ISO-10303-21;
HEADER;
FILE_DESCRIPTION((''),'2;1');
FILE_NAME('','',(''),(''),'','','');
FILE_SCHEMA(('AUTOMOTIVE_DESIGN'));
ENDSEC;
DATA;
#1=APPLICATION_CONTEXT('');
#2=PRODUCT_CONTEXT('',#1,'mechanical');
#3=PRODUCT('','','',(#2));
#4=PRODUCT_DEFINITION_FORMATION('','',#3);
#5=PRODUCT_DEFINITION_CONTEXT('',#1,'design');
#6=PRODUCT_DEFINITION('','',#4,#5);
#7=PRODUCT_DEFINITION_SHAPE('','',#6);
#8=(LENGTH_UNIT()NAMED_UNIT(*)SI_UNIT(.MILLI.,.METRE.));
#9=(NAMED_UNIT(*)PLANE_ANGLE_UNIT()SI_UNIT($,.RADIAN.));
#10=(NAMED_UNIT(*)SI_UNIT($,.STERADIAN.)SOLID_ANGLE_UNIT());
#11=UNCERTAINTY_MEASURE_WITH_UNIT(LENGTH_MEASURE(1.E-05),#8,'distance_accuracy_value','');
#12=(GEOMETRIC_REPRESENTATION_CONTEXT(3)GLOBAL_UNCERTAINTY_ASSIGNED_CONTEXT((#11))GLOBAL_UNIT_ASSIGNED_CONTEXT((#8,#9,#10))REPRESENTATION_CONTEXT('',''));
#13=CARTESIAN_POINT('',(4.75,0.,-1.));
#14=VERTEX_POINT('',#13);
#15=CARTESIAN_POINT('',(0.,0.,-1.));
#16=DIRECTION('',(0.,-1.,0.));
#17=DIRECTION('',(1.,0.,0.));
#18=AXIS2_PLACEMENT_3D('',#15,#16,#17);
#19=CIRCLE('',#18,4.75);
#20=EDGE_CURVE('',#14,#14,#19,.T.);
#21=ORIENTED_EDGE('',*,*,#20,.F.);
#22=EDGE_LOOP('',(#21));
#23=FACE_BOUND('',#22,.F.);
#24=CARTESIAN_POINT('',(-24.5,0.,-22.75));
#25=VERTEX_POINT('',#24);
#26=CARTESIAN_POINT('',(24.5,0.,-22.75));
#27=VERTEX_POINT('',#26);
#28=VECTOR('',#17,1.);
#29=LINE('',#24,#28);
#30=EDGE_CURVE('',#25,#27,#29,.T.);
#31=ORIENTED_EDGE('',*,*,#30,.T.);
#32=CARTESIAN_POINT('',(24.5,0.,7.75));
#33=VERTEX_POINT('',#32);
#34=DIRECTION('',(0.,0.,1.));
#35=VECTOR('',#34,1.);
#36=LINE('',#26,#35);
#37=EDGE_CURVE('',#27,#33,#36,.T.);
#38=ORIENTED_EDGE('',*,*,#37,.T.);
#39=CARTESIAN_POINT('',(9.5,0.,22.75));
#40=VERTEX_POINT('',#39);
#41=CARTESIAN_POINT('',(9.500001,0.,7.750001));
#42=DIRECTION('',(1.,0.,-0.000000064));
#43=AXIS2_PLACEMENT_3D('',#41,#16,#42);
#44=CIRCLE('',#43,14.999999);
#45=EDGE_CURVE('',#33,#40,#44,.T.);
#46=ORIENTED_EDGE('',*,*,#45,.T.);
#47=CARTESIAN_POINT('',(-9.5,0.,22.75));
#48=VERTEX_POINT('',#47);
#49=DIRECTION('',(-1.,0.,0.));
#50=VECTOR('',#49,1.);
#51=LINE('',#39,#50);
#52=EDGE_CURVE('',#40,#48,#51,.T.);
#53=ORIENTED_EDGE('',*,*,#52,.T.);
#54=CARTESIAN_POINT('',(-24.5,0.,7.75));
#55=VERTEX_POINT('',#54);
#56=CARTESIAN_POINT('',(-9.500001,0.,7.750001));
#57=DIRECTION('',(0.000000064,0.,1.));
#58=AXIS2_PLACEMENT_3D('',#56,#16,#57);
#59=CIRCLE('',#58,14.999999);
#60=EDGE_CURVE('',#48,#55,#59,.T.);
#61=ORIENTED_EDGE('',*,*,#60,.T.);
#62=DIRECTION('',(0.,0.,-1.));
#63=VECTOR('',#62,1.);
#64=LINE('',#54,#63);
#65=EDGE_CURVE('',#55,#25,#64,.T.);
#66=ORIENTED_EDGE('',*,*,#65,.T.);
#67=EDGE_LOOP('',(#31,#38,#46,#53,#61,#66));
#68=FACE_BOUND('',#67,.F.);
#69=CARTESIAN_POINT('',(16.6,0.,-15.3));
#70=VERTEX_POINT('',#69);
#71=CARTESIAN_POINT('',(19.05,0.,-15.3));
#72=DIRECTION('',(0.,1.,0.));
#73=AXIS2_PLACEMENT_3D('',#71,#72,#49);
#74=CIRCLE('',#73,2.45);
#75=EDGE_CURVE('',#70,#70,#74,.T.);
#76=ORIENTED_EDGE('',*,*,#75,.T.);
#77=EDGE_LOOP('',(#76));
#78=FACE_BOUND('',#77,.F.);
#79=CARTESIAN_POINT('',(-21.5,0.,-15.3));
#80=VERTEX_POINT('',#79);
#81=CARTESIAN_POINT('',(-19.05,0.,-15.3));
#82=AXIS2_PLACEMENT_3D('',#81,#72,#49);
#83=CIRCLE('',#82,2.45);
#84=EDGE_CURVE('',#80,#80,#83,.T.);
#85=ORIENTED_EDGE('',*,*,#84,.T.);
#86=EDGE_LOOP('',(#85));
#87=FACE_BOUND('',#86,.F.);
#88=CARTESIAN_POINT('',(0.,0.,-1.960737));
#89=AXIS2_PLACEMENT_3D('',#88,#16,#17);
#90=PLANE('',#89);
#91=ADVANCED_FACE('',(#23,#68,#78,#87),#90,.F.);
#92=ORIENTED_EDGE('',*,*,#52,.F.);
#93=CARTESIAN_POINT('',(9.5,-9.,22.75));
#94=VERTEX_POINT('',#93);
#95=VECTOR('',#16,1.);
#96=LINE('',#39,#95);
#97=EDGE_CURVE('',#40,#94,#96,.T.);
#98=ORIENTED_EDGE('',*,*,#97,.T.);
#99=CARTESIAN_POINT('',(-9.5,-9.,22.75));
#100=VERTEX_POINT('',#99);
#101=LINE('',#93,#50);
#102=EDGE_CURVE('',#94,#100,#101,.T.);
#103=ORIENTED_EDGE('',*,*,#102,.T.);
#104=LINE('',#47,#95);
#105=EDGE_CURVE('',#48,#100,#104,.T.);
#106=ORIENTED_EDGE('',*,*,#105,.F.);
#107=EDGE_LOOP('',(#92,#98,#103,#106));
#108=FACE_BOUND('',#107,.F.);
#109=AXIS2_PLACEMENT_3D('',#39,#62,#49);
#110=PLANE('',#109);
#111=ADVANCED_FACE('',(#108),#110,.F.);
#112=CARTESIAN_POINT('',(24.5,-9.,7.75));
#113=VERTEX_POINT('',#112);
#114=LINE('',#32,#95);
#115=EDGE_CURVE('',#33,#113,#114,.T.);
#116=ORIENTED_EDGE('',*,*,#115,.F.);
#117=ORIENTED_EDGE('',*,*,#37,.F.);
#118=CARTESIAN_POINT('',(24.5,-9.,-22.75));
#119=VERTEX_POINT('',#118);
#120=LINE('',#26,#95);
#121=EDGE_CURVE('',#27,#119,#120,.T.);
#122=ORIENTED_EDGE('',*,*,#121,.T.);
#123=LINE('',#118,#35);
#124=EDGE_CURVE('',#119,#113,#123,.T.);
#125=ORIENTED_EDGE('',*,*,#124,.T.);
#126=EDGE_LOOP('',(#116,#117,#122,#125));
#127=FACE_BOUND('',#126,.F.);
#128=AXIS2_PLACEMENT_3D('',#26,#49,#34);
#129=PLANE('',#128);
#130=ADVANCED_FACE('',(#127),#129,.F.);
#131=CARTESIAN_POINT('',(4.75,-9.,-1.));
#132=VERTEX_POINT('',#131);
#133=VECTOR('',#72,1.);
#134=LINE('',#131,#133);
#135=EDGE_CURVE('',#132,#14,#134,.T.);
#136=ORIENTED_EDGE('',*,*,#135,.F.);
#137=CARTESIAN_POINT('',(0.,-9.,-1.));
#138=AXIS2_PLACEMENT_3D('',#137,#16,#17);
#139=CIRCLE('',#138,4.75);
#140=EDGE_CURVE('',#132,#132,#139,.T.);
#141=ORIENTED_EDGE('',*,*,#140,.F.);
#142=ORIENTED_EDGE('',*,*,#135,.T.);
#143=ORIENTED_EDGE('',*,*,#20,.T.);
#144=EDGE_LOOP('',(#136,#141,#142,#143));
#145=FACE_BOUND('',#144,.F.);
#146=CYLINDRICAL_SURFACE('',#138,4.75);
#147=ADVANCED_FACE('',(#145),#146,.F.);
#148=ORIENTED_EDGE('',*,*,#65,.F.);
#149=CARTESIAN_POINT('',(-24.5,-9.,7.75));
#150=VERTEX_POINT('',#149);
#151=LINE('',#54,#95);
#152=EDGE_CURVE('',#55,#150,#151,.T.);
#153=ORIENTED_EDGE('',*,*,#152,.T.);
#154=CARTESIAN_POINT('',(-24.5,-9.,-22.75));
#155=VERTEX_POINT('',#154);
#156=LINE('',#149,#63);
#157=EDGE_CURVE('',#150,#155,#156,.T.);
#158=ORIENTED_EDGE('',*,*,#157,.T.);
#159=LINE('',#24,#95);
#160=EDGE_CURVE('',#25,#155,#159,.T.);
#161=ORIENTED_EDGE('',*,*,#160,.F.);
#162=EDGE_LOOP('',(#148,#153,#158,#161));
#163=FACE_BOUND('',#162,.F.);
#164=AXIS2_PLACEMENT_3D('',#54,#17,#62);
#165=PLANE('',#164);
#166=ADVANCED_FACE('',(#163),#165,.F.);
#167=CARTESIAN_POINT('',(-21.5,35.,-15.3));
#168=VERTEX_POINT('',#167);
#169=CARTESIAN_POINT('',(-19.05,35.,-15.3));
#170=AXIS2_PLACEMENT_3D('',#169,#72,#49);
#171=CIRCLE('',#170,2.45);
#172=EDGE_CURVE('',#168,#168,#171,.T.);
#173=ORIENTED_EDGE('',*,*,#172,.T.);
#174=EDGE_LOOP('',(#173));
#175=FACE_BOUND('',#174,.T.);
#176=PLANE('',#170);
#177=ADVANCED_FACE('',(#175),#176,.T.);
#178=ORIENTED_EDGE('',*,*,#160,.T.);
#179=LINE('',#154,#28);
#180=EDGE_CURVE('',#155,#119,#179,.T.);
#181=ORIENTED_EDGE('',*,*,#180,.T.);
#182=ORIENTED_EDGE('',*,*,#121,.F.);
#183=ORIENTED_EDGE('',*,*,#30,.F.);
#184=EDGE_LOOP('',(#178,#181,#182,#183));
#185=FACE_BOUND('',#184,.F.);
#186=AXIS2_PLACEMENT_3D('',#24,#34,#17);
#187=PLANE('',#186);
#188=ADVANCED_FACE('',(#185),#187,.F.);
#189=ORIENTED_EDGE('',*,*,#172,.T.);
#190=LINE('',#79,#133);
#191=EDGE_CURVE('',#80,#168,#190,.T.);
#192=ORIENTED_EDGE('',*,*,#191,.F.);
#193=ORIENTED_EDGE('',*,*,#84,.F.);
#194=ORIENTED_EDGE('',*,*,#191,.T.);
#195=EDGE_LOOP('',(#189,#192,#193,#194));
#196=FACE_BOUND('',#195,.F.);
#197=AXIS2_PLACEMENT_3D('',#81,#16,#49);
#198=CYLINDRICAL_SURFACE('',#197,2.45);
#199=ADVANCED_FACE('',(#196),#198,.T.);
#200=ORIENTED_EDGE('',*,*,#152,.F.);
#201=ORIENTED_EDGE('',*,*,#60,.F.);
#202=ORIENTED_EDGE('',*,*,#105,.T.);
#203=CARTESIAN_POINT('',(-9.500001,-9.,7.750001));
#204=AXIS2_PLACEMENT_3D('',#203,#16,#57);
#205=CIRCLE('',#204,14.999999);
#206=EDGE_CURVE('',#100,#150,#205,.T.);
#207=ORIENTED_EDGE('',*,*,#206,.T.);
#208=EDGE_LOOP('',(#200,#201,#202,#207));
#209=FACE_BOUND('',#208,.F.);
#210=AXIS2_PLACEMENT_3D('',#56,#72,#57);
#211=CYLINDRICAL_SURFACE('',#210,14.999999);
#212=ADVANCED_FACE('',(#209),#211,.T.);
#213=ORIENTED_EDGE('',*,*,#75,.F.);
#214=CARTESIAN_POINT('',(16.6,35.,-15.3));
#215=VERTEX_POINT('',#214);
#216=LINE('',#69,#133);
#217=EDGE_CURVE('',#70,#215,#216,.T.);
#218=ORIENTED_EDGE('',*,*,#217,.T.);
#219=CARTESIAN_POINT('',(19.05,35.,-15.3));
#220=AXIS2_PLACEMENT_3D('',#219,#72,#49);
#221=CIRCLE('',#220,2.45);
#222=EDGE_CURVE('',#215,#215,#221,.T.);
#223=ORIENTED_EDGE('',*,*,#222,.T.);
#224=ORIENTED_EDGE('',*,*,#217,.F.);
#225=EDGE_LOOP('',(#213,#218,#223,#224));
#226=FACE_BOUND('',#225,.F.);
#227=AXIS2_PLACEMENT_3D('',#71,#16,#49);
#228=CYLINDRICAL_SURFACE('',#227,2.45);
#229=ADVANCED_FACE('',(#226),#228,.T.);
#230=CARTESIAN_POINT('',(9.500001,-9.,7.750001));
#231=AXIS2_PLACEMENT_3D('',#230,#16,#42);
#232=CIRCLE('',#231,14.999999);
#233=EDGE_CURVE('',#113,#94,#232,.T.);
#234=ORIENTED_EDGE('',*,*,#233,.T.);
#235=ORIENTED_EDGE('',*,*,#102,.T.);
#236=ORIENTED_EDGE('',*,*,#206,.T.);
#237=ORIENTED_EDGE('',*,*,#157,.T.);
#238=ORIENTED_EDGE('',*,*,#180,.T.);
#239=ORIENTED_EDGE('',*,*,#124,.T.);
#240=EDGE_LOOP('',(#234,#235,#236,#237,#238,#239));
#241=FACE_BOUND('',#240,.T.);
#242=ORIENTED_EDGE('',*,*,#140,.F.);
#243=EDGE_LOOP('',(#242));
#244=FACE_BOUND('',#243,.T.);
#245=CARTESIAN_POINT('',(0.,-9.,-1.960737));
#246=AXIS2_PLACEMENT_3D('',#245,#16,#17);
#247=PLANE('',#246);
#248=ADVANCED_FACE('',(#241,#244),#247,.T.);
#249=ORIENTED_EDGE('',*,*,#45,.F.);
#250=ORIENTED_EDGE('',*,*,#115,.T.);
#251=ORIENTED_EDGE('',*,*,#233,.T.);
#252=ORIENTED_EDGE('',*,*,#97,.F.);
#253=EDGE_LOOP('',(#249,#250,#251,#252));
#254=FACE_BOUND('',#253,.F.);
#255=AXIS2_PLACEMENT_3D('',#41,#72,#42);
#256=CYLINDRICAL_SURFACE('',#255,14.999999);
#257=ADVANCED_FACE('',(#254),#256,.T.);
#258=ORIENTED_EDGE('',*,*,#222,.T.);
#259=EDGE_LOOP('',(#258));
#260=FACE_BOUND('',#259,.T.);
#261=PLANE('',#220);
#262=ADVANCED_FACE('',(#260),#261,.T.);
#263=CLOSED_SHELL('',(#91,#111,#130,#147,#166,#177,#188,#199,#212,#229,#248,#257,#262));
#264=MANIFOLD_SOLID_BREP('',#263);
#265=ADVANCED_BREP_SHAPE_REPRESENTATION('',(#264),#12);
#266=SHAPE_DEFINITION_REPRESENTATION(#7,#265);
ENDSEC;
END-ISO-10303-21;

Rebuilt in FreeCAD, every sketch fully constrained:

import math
import FreeCAD as App
import Part
import Sketcher

doc = App.newDocument("Part")
params = doc.addObject("Spreadsheet::Sheet", "Params")
for row, (alias, value) in enumerate([
    ("sketch1_radius", "14.999999 mm"),
    ("sketch1_width", "49 mm"),
    ("sketch1_height", "30.5 mm"),
    ("pad1_length", "9 mm"),
    ("sketch2_diameter", "9.5 mm"),
    ("pocket1_length", "25 mm"),
    ("sketch3_diameter", "4.9 mm"),
    ("pad2_length", "35 mm"),
], start=1):
    params.set(f"A{row}", alias)
    params.set(f"B{row}", "=" + value)
    params.setAlias(f"B{row}", alias)

body = doc.addObject("PartDesign::Body", "Body")

# Sketch on XZ plane
sketch1 = doc.addObject("Sketcher::SketchObject", "Sketch")
body.addObject(sketch1)
sketch1.AttachmentSupport = (doc.XZ_Plane, [""])
sketch1.MapMode = "FlatFace"
sketch1.addGeometry([
    Part.LineSegment(App.Vector(-24.5, -22.75, 0), App.Vector(24.5, -22.75, 0)),  # 0
    Part.LineSegment(App.Vector(24.5, -22.75, 0), App.Vector(24.5, 7.75, 0)),  # 1
    Part.ArcOfCircle(Part.Circle(App.Vector(9.500001, 7.750001, 0), App.Vector(0, 0, 1), 14.999999), math.radians(-0.000004), math.radians(90.000004)),  # 2
    Part.LineSegment(App.Vector(9.5, 22.75, 0), App.Vector(-9.5, 22.75, 0)),  # 3
    Part.ArcOfCircle(Part.Circle(App.Vector(-9.500001, 7.750001, 0), App.Vector(0, 0, 1), 14.999999), math.radians(89.999996), math.radians(180.000004)),  # 4
    Part.LineSegment(App.Vector(-24.5, 7.75, 0), App.Vector(-24.5, -22.75, 0)),  # 5
], False)
sketch1.addConstraint([
    Sketcher.Constraint("Coincident", 0, 2, 1, 1),
    Sketcher.Constraint("Tangent", 1, 2, 2, 1),
    Sketcher.Constraint("Tangent", 2, 2, 3, 1),
    Sketcher.Constraint("Tangent", 3, 2, 4, 1),
    Sketcher.Constraint("Tangent", 4, 2, 5, 1),
    Sketcher.Constraint("Coincident", 5, 2, 0, 1),
    Sketcher.Constraint("Horizontal", 0),
    Sketcher.Constraint("Vertical", 1),
    Sketcher.Constraint("Horizontal", 3),
    Sketcher.Constraint("Vertical", 5),
    Sketcher.Constraint("Equal", 2, 4),
    Sketcher.Constraint("Radius", 2, 14.999999),
    Sketcher.Constraint("DistanceX", 0, 1, 0, 2, 49.0),
    Sketcher.Constraint("DistanceY", 1, 1, 1, 2, 30.5),
    Sketcher.Constraint("DistanceX", -1, 1, 2, 3, 9.500001),
    Sketcher.Constraint("DistanceY", -1, 1, 2, 3, 7.750001),
])
sketch1.setExpression("Constraints[11]", "Params.sketch1_radius")
sketch1.setExpression("Constraints[12]", "Params.sketch1_width")
sketch1.setExpression("Constraints[13]", "Params.sketch1_height")
pad1 = doc.addObject("PartDesign::Pad", "Pad")
body.addObject(pad1)
pad1.Profile = sketch1
pad1.setExpression("Length", "Params.pad1_length")

# Sketch on XZ plane
sketch2 = doc.addObject("Sketcher::SketchObject", "Sketch001")
body.addObject(sketch2)
sketch2.AttachmentSupport = (doc.XZ_Plane, [""])
sketch2.MapMode = "FlatFace"
sketch2.AttachmentOffset = App.Placement(App.Vector(0, 0, 9), App.Rotation())
sketch2.addGeometry(Part.Circle(App.Vector(0, -1, 0), App.Vector(0, 0, 1), 4.75), False)
sketch2.addConstraint([
    Sketcher.Constraint("PointOnObject", 0, 3, -2),
    Sketcher.Constraint("Diameter", 0, 9.5),
    Sketcher.Constraint("DistanceY", 0, 3, -1, 1, 1.0),
])
sketch2.setExpression("Constraints[1]", "Params.sketch2_diameter")
pocket1 = doc.addObject("PartDesign::Pocket", "Pocket")
body.addObject(pocket1)
pocket1.Profile = sketch2
pocket1.setExpression("Length", "Params.pocket1_length")

# Sketch on XZ plane
sketch3 = doc.addObject("Sketcher::SketchObject", "Sketch002")
body.addObject(sketch3)
sketch3.AttachmentSupport = (doc.XZ_Plane, [""])
sketch3.MapMode = "FlatFace"
sketch3.addGeometry([
    Part.Circle(App.Vector(19.05, -15.3, 0), App.Vector(0, 0, 1), 2.45),
    Part.Circle(App.Vector(-19.05, -15.3, 0), App.Vector(0, 0, 1), 2.45),
], False)
sketch3.addConstraint([
    Sketcher.Constraint("Equal", 0, 1),
    Sketcher.Constraint("Symmetric", 0, 3, 1, 3, -2),
    Sketcher.Constraint("Diameter", 0, 4.9),
    Sketcher.Constraint("DistanceY", 0, 3, -1, 1, 15.3),
    Sketcher.Constraint("DistanceX", 1, 3, 0, 3, 38.1),
])
sketch3.setExpression("Constraints[2]", "Params.sketch3_diameter")
pad2 = doc.addObject("PartDesign::Pad", "Pad001")
body.addObject(pad2)
pad2.Profile = sketch3
pad2.setExpression("Length", "Params.pad2_length")
pad2.Reversed = True

doc.recompute()
